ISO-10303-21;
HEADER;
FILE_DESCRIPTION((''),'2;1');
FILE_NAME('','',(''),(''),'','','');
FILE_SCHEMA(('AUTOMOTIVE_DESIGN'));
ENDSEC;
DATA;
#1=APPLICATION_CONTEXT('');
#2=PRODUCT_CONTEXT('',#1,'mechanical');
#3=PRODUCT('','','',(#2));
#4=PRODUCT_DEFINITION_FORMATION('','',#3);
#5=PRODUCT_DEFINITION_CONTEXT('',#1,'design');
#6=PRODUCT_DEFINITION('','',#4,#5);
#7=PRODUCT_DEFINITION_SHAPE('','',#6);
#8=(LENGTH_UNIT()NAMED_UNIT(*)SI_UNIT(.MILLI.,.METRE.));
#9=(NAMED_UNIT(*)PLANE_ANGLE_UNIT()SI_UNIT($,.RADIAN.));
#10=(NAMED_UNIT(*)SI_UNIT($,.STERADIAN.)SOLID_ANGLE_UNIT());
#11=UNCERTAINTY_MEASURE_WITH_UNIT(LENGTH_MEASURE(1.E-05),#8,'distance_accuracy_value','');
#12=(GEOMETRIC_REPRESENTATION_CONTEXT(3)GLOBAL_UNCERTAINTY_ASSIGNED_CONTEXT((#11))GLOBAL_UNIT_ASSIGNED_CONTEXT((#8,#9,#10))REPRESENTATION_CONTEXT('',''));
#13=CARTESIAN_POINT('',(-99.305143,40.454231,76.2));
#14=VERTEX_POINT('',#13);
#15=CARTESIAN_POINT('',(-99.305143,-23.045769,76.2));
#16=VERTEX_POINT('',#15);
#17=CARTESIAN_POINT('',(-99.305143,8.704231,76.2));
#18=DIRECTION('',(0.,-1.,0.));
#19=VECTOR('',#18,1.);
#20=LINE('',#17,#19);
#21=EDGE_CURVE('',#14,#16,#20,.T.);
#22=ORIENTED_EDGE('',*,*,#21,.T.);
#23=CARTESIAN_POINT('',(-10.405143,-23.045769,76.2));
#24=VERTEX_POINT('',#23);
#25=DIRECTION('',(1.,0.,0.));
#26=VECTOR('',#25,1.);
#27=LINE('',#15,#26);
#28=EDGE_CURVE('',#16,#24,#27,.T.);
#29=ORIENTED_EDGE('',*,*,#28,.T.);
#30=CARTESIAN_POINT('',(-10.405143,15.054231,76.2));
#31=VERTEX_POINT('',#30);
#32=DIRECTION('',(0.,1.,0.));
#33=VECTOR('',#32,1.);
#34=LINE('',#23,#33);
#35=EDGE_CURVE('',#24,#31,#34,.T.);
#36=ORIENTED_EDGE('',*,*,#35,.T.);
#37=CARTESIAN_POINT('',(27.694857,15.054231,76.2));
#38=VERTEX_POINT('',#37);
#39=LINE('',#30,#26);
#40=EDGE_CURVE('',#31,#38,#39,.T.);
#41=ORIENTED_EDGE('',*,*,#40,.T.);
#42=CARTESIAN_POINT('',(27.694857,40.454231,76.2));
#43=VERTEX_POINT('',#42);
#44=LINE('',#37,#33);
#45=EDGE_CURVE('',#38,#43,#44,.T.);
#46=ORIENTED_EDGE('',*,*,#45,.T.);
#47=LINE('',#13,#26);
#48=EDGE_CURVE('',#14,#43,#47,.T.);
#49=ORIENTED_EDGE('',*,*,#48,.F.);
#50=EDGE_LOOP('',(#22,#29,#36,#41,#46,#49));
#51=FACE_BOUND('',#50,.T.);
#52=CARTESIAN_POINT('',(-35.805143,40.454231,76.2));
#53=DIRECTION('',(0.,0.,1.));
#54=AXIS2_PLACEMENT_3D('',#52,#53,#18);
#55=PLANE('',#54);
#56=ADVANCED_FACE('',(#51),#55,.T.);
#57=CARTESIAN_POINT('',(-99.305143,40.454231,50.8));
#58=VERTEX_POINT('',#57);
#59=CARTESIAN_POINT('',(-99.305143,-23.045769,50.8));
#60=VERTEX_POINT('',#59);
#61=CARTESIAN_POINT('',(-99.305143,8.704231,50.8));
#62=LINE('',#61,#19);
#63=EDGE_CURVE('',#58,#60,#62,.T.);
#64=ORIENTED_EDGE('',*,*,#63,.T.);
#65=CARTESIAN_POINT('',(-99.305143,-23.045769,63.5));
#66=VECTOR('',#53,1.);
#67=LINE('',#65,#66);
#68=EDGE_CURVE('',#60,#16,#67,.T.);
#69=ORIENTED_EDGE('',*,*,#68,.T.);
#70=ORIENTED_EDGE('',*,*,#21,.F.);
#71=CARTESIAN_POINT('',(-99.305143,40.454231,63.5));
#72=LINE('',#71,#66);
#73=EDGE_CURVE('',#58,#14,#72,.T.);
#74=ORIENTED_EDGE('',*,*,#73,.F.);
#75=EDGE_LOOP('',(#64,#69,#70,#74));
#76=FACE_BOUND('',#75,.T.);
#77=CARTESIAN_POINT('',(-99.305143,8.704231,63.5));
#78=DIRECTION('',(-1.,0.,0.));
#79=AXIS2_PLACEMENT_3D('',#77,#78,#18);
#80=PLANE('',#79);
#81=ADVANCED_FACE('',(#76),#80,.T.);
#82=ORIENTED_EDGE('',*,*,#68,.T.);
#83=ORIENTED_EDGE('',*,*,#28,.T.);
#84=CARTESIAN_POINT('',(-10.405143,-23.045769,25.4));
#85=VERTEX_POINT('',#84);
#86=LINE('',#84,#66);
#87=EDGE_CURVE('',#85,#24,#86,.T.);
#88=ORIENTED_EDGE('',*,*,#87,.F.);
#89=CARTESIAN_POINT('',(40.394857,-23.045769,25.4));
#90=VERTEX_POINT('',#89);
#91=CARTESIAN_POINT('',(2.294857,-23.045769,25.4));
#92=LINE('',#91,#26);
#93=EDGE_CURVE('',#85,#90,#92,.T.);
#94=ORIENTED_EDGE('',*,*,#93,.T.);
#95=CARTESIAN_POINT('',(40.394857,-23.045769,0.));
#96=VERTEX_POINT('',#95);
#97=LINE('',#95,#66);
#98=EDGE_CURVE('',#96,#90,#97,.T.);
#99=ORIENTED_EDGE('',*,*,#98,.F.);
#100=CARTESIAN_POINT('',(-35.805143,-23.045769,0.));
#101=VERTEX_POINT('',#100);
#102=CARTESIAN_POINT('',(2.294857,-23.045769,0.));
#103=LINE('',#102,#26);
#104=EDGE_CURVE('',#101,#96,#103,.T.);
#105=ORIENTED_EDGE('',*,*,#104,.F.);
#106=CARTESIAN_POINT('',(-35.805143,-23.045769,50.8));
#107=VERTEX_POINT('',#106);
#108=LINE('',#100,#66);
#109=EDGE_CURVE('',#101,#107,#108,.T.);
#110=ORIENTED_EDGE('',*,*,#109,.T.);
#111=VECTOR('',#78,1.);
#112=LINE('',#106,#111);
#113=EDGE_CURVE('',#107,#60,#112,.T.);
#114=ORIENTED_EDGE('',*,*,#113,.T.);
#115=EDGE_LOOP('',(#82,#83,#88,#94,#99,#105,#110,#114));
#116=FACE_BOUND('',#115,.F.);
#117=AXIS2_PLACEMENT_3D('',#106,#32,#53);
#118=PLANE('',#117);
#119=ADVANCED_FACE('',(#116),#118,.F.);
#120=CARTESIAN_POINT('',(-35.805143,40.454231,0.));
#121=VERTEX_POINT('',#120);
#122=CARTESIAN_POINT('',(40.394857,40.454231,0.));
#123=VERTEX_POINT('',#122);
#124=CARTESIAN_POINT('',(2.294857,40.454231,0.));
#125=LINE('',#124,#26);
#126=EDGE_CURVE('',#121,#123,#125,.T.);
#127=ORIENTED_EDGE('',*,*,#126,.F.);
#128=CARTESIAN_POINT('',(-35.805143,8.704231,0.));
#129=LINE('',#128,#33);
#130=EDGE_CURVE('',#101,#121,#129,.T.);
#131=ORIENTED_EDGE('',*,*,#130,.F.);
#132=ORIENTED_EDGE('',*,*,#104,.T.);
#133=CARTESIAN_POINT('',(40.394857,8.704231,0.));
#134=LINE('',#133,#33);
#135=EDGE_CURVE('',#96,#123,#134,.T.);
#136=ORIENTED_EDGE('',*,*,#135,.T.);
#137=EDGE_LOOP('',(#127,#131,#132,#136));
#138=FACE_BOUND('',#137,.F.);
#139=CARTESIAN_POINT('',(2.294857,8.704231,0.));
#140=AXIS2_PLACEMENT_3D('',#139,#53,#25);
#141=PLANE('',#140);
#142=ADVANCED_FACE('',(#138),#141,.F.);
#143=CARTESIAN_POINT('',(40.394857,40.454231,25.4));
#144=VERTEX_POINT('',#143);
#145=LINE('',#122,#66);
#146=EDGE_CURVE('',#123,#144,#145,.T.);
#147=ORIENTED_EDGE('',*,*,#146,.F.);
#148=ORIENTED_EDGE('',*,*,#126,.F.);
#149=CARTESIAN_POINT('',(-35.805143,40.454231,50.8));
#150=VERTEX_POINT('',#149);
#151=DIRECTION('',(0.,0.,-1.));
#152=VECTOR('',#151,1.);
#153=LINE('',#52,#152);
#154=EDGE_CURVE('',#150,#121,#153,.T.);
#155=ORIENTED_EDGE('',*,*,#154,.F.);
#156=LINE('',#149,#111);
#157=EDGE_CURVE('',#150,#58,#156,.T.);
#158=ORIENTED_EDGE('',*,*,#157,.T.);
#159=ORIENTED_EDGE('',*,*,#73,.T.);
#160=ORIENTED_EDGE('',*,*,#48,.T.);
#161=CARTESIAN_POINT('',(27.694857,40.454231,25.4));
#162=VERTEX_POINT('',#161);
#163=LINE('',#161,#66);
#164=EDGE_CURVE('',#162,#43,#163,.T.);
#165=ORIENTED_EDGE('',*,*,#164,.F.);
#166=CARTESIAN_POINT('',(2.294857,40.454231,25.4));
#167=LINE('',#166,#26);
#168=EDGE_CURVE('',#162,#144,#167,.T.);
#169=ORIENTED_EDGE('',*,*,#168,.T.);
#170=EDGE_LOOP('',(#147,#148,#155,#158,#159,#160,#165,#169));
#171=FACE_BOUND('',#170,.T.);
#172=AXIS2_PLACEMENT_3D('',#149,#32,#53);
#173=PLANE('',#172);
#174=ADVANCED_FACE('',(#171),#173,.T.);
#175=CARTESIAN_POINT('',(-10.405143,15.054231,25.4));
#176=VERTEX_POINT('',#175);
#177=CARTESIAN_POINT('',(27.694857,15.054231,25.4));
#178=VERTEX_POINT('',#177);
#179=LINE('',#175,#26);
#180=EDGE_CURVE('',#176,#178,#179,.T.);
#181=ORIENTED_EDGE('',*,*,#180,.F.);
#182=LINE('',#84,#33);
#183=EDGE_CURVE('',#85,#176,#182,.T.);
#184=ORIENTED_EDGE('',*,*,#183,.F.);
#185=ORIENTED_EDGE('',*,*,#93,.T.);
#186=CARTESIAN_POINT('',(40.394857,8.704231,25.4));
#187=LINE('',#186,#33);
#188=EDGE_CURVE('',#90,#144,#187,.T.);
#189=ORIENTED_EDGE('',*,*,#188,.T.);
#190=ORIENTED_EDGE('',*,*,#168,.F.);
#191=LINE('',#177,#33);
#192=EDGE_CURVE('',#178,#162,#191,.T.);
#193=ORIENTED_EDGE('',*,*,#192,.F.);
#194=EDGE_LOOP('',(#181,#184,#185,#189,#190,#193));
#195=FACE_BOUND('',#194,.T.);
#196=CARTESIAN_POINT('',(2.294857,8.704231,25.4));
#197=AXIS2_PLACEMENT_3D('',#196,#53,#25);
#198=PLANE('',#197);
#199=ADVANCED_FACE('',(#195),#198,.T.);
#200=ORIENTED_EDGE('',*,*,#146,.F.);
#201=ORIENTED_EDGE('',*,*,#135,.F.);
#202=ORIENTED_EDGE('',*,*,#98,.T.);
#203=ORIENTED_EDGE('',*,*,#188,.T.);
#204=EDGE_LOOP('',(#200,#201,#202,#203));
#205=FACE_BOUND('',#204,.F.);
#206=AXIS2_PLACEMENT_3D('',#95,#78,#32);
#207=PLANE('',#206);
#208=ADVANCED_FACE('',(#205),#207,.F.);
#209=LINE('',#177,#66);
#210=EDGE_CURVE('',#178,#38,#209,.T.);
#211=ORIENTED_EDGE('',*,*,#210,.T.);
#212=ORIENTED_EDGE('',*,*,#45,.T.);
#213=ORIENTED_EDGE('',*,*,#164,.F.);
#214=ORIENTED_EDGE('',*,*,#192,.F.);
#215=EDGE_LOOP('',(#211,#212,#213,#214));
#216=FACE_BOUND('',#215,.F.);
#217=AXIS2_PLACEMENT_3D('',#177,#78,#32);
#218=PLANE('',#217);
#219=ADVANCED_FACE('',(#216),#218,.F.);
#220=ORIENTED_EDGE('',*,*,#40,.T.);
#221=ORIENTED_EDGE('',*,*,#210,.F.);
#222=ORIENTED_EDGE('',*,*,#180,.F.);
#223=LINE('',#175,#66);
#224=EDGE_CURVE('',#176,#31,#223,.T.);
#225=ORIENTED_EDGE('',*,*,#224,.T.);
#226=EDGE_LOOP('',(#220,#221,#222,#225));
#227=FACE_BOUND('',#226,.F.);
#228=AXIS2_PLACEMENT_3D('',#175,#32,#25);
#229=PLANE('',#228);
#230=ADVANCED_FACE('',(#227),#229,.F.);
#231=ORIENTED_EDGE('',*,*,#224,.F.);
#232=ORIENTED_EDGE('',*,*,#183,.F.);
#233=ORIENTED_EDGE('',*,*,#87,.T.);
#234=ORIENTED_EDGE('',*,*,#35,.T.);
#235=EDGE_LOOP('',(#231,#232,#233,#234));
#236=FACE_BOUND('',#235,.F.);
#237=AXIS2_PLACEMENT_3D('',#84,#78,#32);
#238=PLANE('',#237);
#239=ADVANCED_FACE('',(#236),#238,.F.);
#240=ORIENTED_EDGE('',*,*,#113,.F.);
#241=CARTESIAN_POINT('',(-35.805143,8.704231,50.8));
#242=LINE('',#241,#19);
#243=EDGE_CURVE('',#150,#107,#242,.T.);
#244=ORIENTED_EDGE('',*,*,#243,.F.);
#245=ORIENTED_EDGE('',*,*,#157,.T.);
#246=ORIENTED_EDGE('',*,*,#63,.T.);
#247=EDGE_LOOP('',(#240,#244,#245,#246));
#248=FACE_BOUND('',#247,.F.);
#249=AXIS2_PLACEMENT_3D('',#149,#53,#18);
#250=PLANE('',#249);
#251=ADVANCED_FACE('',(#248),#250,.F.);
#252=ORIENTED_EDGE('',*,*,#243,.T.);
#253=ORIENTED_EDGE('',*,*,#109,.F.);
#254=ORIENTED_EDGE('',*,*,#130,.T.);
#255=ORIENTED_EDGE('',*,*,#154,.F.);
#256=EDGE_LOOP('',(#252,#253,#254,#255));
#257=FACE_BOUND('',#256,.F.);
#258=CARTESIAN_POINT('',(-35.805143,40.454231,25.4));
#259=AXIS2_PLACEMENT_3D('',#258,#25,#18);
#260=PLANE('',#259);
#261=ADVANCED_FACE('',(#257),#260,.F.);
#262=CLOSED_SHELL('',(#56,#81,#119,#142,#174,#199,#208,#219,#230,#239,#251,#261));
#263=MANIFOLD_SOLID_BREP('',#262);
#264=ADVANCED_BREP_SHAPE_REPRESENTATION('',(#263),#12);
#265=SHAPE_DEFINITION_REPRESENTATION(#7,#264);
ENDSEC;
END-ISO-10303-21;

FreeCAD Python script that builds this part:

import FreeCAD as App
import Part
import Sketcher
from FreeCAD import Vector
Q = App.Units.Quantity


def add_polygon(sketch, points):
    """Adds a closed chain of lines whose ends are joined by coincident constraints."""
    first, n = sketch.GeometryCount, len(points)
    for a, b in zip(points, points[1:] + points[:1]):
        sketch.addGeometry(Part.LineSegment(App.Vector(*a, 0), App.Vector(*b, 0)), False)
    for i in range(n):
        sketch.addConstraint(Sketcher.Constraint("Coincident", first + i, 2, first + (i + 1) % n, 1))

doc = App.newDocument("Part")
body = doc.addObject("PartDesign::Body", "Body")

sketch1 = body.newObject("Sketcher::SketchObject", "Sketch")
sketch1.AttachmentSupport = (doc.getObject("XY_Plane"), [""])
sketch1.MapMode = "FlatFace"
add_polygon(sketch1, [(-36, 40), (-36, -23), (40, -23), (40, 40)])
sketch1.addConstraint(Sketcher.Constraint("Vertical", 0))
sketch1.addConstraint(Sketcher.Constraint("Horizontal", 1))
sketch1.addConstraint(Sketcher.Constraint("Vertical", 2))
sketch1.addConstraint(Sketcher.Constraint("Horizontal", 3))
sketch1.addConstraint(Sketcher.Constraint("DistanceX", 1, 1, 1, 2, Q("3 in")))
sketch1.addConstraint(Sketcher.Constraint("DistanceY", 0, 2, 0, 1, Q("2.5 in")))
sketch1.addConstraint(Sketcher.Constraint("DistanceY", 0, 2, -1, 1, 23.045769))
sketch1.addConstraint(Sketcher.Constraint("DistanceX", 0, 2, -1, 1, 35.805143))
pad1 = body.newObject("PartDesign::Pad", "Pad")
pad1.Profile = sketch1
pad1.Length = Q("1 in")

sketch2 = body.newObject("Sketcher::SketchObject", "Sketch001")
sketch2.AttachmentSupport = (doc.getObject("XY_Plane"), [""])
sketch2.MapMode = "FlatFace"
sketch2.AttachmentOffset = App.Placement(Vector(0, 0, 1 * 25.4), App.Rotation())
add_polygon(sketch2, [(-36, 40), (-36, -23), (-10, -23), (-10, 15), (28, 15), (28, 40)])
sketch2.addConstraint(Sketcher.Constraint("Vertical", 0))
sketch2.addConstraint(Sketcher.Constraint("Horizontal", 1))
sketch2.addConstraint(Sketcher.Constraint("Vertical", 2))
sketch2.addConstraint(Sketcher.Constraint("Horizontal", 3))
sketch2.addConstraint(Sketcher.Constraint("Vertical", 4))
sketch2.addConstraint(Sketcher.Constraint("Horizontal", 5))
sketch2.addConstraint(Sketcher.Constraint("Equal", 5, 0))
sketch2.addConstraint(Sketcher.Constraint("Equal", 3, 2))
sketch2.addConstraint(Sketcher.Constraint("DistanceX", 1, 1, 1, 2, Q("1 in")))
sketch2.addConstraint(Sketcher.Constraint("DistanceX", 3, 1, 3, 2, Q("1.5 in")))
sketch2.addConstraint(Sketcher.Constraint("DistanceY", 0, 2, -1, 1, 23.045769))
sketch2.addConstraint(Sketcher.Constraint("DistanceX", 0, 2, -1, 1, 35.805143))
pad2 = body.newObject("PartDesign::Pad", "Pad001")
pad2.Profile = sketch2
pad2.Length = Q("2 in")

sketch3 = body.newObject("Sketcher::SketchObject", "Sketch002")
sketch3.AttachmentSupport = (doc.getObject("YZ_Plane"), [""])
sketch3.MapMode = "FlatFace"
sketch3.AttachmentOffset = App.Placement(Vector(0, 0, -35.805143), App.Rotation())
add_polygon(sketch3, [(40, 76), (40, 51), (-23, 51), (-23, 76)])
sketch3.addConstraint(Sketcher.Constraint("Vertical", 0))
sketch3.addConstraint(Sketcher.Constraint("Horizontal", 1))
sketch3.addConstraint(Sketcher.Constraint("Vertical", 2))
sketch3.addConstraint(Sketcher.Constraint("Horizontal", 3))
sketch3.addConstraint(Sketcher.Constraint("DistanceY", 0, 2, 0, 1, Q("1 in")))
sketch3.addConstraint(Sketcher.Constraint("DistanceX", 1, 2, 1, 1, Q("2.5 in")))
sketch3.addConstraint(Sketcher.Constraint("DistanceY", -1, 1, 0, 2, Q("2 in")))
sketch3.addConstraint(Sketcher.Constraint("DistanceX", -1, 1, 0, 2, 40.454231))
pad3 = body.newObject("PartDesign::Pad", "Pad002")
pad3.Profile = sketch3
pad3.Length = Q("2.5 in")
pad3.Reversed = True

doc.recompute()
